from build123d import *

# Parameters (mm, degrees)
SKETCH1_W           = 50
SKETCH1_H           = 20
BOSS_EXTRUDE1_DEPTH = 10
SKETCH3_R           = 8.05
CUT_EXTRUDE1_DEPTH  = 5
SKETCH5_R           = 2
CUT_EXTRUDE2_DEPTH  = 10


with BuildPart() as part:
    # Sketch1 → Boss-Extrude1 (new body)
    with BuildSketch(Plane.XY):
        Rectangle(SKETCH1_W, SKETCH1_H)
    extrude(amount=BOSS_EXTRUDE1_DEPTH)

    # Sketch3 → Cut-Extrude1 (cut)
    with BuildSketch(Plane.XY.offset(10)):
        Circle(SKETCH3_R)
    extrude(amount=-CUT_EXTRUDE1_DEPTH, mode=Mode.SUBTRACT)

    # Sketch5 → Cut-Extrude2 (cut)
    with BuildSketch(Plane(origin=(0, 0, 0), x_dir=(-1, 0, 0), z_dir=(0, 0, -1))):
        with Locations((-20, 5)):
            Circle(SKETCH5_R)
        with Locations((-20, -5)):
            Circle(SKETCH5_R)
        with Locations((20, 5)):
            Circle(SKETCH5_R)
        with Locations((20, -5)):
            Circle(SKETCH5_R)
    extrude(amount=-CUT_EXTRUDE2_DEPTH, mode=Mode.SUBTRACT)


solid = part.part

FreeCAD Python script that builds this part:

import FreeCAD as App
import Part
import Sketcher
from FreeCAD import Vector
Q = App.Units.Quantity


def add_polygon(sketch, points):
    """Adds a closed chain of lines whose ends are joined by coincident constraints."""
    first, n = sketch.GeometryCount, len(points)
    for a, b in zip(points, points[1:] + points[:1]):
        sketch.addGeometry(Part.LineSegment(App.Vector(*a, 0), App.Vector(*b, 0)), False)
    for i in range(n):
        sketch.addConstraint(Sketcher.Constraint("Coincident", first + i, 2, first + (i + 1) % n, 1))

doc = App.newDocument("Part")
body = doc.addObject("PartDesign::Body", "Body")

sketch1 = body.newObject("Sketcher::SketchObject", "Sketch")
sketch1.AttachmentSupport = (doc.getObject("XY_Plane"), [""])
sketch1.MapMode = "FlatFace"
add_polygon(sketch1, [(-25, 10), (-25, -10), (25, -10), (25, 10)])
sketch1.addConstraint([
    Sketcher.Constraint("Vertical", 0),
    Sketcher.Constraint("Horizontal", 1),
    Sketcher.Constraint("Vertical", 2),
    Sketcher.Constraint("Horizontal", 3),
    Sketcher.Constraint("Symmetric", 0, 2, 2, 2, -1, 1),
    Sketcher.Constraint("DistanceX", 1, 1, 1, 2, Q("50 mm")),
    Sketcher.Constraint("DistanceY", 0, 2, 0, 1, Q("20 mm")),
])
pad1 = body.newObject("PartDesign::Pad", "Pad")
pad1.Profile = sketch1
pad1.Length = 10

sketch2 = body.newObject("Sketcher::SketchObject", "Sketch001")
sketch2.AttachmentSupport = (doc.getObject("XY_Plane"), [""])
sketch2.MapMode = "FlatFace"
sketch2.AttachmentOffset = App.Placement(Vector(0, 0, 10), App.Rotation())
sketch2.addGeometry(Part.Circle(Vector(0, 0, 0), Vector(0, 0, 1), 8), False)
sketch2.addConstraint([
    Sketcher.Constraint("Coincident", 0, 3, -1, 1),
    Sketcher.Constraint("Diameter", 0, Q("16.1 mm")),
])
pocket1 = body.newObject("PartDesign::Pocket", "Pocket")
pocket1.Profile = sketch2
pocket1.Length = 5

sketch3 = body.newObject("Sketcher::SketchObject", "Sketch002")
sketch3.AttachmentSupport = (doc.getObject("XY_Plane"), [""])
sketch3.MapMode = "FlatFace"
sketch3.addGeometry([
    Part.Circle(Vector(20, 5, 0), Vector(0, 0, 1), 2),
    Part.Circle(Vector(20, -5, 0), Vector(0, 0, 1), 2),
    Part.Circle(Vector(-20, 5, 0), Vector(0, 0, 1), 2),
    Part.Circle(Vector(-20, -5, 0), Vector(0, 0, 1), 2),
], False)
sketch3.addConstraint([
    Sketcher.Constraint("Equal", 0, 1),
    Sketcher.Constraint("Equal", 1, 2),
    Sketcher.Constraint("Equal", 2, 3),
    Sketcher.Constraint("Symmetric", 1, 3, 2, 3, -1, 1),
    Sketcher.Constraint("Symmetric", 0, 3, 3, 3, -1, 1),
    Sketcher.Constraint("Symmetric", 0, 3, 2, 3, -2),
    Sketcher.Constraint("Diameter", 0, Q("4 mm")),
    Sketcher.Constraint("DistanceX", -1, 1, 0, 3, Q("20 mm")),
    Sketcher.Constraint("DistanceY", -1, 1, 0, 3, Q("5 mm")),
])
pocket2 = body.newObject("PartDesign::Pocket", "Pocket001")
pocket2.Profile = sketch3
pocket2.Length = 10
pocket2.Reversed = True

doc.recompute()
